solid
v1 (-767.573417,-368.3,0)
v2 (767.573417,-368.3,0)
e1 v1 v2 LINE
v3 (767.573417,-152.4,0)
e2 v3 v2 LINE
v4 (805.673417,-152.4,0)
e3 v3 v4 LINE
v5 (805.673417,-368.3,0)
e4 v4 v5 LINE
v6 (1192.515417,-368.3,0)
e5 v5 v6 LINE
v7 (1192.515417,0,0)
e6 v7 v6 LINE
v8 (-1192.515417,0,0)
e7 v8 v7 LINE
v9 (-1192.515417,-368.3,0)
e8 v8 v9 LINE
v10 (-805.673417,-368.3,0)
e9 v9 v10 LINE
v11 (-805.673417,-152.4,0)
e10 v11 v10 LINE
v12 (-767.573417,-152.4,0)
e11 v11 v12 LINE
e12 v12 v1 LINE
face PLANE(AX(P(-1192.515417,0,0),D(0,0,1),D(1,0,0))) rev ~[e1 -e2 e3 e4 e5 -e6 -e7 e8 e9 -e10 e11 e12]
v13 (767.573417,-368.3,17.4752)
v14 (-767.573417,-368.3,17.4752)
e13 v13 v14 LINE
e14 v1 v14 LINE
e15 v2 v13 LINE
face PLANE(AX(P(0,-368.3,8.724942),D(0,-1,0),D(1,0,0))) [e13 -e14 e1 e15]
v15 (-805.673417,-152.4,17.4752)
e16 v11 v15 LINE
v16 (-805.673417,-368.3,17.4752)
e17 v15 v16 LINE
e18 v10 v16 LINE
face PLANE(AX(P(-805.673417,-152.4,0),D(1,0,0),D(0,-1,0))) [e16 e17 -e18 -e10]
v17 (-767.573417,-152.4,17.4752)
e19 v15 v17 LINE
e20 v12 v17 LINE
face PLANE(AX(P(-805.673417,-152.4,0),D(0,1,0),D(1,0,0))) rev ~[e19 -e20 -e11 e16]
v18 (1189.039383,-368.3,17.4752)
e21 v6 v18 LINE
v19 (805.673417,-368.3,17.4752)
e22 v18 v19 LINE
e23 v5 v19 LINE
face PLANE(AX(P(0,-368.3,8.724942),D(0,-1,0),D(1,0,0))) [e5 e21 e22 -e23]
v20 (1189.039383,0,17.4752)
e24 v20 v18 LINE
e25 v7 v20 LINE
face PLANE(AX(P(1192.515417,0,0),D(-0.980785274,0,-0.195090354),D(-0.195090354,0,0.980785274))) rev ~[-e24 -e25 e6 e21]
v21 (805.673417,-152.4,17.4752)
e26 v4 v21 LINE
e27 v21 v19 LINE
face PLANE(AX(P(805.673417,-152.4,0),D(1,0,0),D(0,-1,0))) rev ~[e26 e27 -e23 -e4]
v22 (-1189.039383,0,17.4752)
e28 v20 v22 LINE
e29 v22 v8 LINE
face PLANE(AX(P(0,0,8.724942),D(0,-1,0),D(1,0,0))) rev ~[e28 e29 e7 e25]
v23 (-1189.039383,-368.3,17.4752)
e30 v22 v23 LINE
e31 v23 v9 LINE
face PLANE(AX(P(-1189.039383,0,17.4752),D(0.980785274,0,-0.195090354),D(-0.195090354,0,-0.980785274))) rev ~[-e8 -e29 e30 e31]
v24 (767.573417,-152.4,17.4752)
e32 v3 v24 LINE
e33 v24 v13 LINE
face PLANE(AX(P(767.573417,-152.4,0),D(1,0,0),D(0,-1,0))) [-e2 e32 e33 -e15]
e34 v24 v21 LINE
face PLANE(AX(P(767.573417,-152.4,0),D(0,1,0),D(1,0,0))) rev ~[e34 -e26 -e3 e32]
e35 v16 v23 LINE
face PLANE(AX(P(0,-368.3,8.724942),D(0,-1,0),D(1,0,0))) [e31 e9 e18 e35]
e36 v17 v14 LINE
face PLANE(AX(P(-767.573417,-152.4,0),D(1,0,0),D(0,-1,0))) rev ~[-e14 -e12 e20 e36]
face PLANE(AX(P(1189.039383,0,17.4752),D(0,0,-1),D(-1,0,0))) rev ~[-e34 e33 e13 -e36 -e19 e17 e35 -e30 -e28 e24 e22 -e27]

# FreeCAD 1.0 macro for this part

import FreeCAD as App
import Part
import Sketcher

V = App.Vector
Q = App.Units.Quantity

doc = App.newDocument("Part")
body = doc.addObject("PartDesign::Body", "Body")

# Sketch on XZ plane
sketch1 = body.newObject("Sketcher::SketchObject", "Sketch")
sketch1.AttachmentSupport = (doc.getObject("XZ_Plane"), [""])
sketch1.MapMode = "FlatFace"
sketch1.addGeometry([
    Part.LineSegment(V(-1189, 17, 0), V(-1193, 0, 0)),
    Part.LineSegment(V(-1193, 0, 0), V(1193, 0, 0)),
    Part.LineSegment(V(1193, 0, 0), V(1189, 17, 0)),
    Part.LineSegment(V(1189, 17, 0), V(-1189, 17, 0)),
], False)
sketch1.addConstraint([
    Sketcher.Constraint("Coincident", 0, 2, 1, 1),
    Sketcher.Constraint("Coincident", 1, 2, 2, 1),
    Sketcher.Constraint("Coincident", 2, 2, 3, 1),
    Sketcher.Constraint("Coincident", 3, 2, 0, 1),
    Sketcher.Constraint("Horizontal", 1),
    Sketcher.Constraint("Horizontal", 3),
    Sketcher.Constraint("Symmetric", 0, 2, 1, 2, -1, 1),
    Sketcher.Constraint("Equal", 0, 2),
    Sketcher.Constraint("Angle", 0, Q("-101.250002 deg")),
    Sketcher.Constraint("DistanceY", -1, 1, 2, 2, Q("0.688 in")),
    Sketcher.Constraint("DistanceX", 0, 2, 2, 2, Q("93.762 in")),
])
pad1 = body.newObject("PartDesign::Pad", "Pad")
pad1.Profile = sketch1
pad1.Length = Q("14.5 in")

# Sketch on XY plane
sketch2 = body.newObject("Sketcher::SketchObject", "Sketch001")
sketch2.AttachmentSupport = (doc.getObject("XY_Plane"), [""])
sketch2.MapMode = "FlatFace"
sketch2.addGeometry([
    Part.LineSegment(V(-806, -368, 0), V(-806, -152, 0)),  # 0
    Part.LineSegment(V(-806, -152, 0), V(-768, -152, 0)),  # 1
    Part.LineSegment(V(-768, -152, 0), V(-768, -368, 0)),  # 2
    Part.LineSegment(V(-768, -368, 0), V(-806, -368, 0)),  # 3
    Part.LineSegment(V(768, -368, 0), V(768, -152, 0)),  # 4
    Part.LineSegment(V(768, -152, 0), V(806, -152, 0)),  # 5
    Part.LineSegment(V(806, -152, 0), V(806, -368, 0)),  # 6
    Part.LineSegment(V(806, -368, 0), V(768, -368, 0)),  # 7
], False)
sketch2.addConstraint([
    Sketcher.Constraint("Coincident", 0, 2, 1, 1),
    Sketcher.Constraint("Coincident", 1, 2, 2, 1),
    Sketcher.Constraint("Coincident", 2, 2, 3, 1),
    Sketcher.Constraint("Coincident", 3, 2, 0, 1),
    Sketcher.Constraint("Coincident", 4, 2, 5, 1),
    Sketcher.Constraint("Coincident", 5, 2, 6, 1),
    Sketcher.Constraint("Coincident", 6, 2, 7, 1),
    Sketcher.Constraint("Coincident", 7, 2, 4, 1),
    Sketcher.Constraint("Vertical", 0),
    Sketcher.Constraint("Horizontal", 1),
    Sketcher.Constraint("Vertical", 2),
    Sketcher.Constraint("Horizontal", 3),
    Sketcher.Constraint("Vertical", 4),
    Sketcher.Constraint("Horizontal", 5),
    Sketcher.Constraint("Vertical", 6),
    Sketcher.Constraint("Horizontal", 7),
    Sketcher.Constraint("Symmetric", 1, 2, 4, 2, -2),
    Sketcher.Constraint("Symmetric", 3, 2, 6, 2, -2),
    Sketcher.Constraint("DistanceX", 1, 1, 1, 2, Q("1.5 in")),
    Sketcher.Constraint("DistanceY", 0, 1, 0, 2, Q("8.5 in")),
    Sketcher.Constraint("DistanceY", 0, 2, -1, 1, Q("6 in")),
    Sketcher.Constraint("DistanceX", 0, 2, -1, 1, Q("805.673417 mm")),
])
pocket1 = body.newObject("PartDesign::Pocket", "Pocket")
pocket1.Profile = sketch2
pocket1.Type = "ThroughAll"
pocket1.Reversed = True

doc.recompute()
